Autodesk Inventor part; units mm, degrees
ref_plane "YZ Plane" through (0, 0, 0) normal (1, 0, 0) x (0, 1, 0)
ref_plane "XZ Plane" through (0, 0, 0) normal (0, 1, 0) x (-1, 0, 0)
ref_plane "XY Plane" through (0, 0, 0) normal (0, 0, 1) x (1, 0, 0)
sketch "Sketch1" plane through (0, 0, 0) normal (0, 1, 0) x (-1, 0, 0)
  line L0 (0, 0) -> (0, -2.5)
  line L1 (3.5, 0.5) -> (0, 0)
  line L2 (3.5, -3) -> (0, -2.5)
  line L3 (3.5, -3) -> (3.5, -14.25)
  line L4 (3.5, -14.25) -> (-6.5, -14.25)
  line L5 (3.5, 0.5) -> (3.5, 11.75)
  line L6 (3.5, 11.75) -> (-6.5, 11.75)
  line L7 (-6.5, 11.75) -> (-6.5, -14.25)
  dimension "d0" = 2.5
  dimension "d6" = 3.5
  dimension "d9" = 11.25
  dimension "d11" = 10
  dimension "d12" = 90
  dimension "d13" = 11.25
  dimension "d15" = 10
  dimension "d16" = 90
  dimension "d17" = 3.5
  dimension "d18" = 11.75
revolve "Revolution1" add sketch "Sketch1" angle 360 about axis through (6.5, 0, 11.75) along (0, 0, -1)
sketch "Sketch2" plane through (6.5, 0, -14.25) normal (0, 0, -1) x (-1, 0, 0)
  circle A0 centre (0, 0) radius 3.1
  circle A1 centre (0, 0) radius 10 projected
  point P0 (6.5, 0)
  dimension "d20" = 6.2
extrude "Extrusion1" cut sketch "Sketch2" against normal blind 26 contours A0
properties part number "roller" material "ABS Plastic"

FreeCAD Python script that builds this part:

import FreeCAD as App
import Part
import Sketcher

V = App.Vector
Q = App.Units.Quantity


def add_polygon(sketch, points):
    """Adds a closed chain of lines whose ends are joined by coincident constraints."""
    first, n = sketch.GeometryCount, len(points)
    for a, b in zip(points, points[1:] + points[:1]):
        sketch.addGeometry(Part.LineSegment(App.Vector(*a, 0), App.Vector(*b, 0)), False)
    for i in range(n):
        sketch.addConstraint(Sketcher.Constraint("Coincident", first + i, 2, first + (i + 1) % n, 1))

doc = App.newDocument("Part")
body = doc.addObject("PartDesign::Body", "Body")

# Sketch on XZ plane
sketch1 = doc.addObject("Sketcher::SketchObject", "Sketch")
body.addObject(sketch1)
sketch1.AttachmentSupport = (doc.XZ_Plane, [""])
sketch1.MapMode = "FlatFace"
add_polygon(sketch1, [(0, -2.5), (0, 0), (-3.5, 0.5), (-3.5, 11.8), (6.5, 11.8), (6.5, -14.2), (-3.5, -14.2), (-3.5, -3)])  # lines 0-7
sketch1.addGeometry(Part.LineSegment(V(6.5, 11.8, 0), V(6.5, -14.2, 0)), True)  # axis
sketch1.addConstraint(Sketcher.Constraint("Vertical", 0))
sketch1.addConstraint(Sketcher.Constraint("Vertical", 2))
sketch1.addConstraint(Sketcher.Constraint("Horizontal", 3))
sketch1.addConstraint(Sketcher.Constraint("Vertical", 4))
sketch1.addConstraint(Sketcher.Constraint("Horizontal", 5))
sketch1.addConstraint(Sketcher.Constraint("Vertical", 6))
sketch1.addConstraint(Sketcher.Constraint("Vertical", 8))
sketch1.addConstraint(Sketcher.Constraint("Coincident", 0, 2, -1, 1))
sketch1.addConstraint(Sketcher.Constraint("Coincident", 8, 1, 3, 2))
sketch1.addConstraint(Sketcher.Constraint("Horizontal", 5, 2, 8, 2))
sketch1.addConstraint(Sketcher.Constraint("Vertical", 2, 2, 5, 2))
sketch1.addConstraint(Sketcher.Constraint("Equal", 2, 6))
sketch1.addConstraint(Sketcher.Constraint("Equal", 1, 7))
sketch1.addConstraint(Sketcher.Constraint("DistanceX", 3, 1, 3, 2, Q("10 mm")))
sketch1.addConstraint(Sketcher.Constraint("DistanceY", 0, 1, 0, 2, Q("2.5 mm")))
sketch1.addConstraint(Sketcher.Constraint("DistanceY", 2, 1, 2, 2, Q("11.25 mm")))
sketch1.addConstraint(Sketcher.Constraint("DistanceX", 1, 2, -1, 1, Q("3.5 mm")))
sketch1.addConstraint(Sketcher.Constraint("DistanceY", 6, 2, 1, 2, Q("3.5 mm")))
revolution = doc.addObject("PartDesign::Revolution", "Revolution")
body.addObject(revolution)
revolution.Profile = sketch1
revolution.ReferenceAxis = (sketch1, ["Axis0"])
revolution.Angle = 360

# Sketch on XY plane
sketch2 = doc.addObject("Sketcher::SketchObject", "Sketch001")
body.addObject(sketch2)
sketch2.AttachmentSupport = (doc.XY_Plane, [""])
sketch2.MapMode = "FlatFace"
sketch2.AttachmentOffset = App.Placement(V(0, 0, -14.25), App.Rotation())
sketch2.addGeometry(Part.Circle(V(6.5, 0, 0), V(0, 0, 1), 3.1), False)
sketch2.addConstraint(Sketcher.Constraint("PointOnObject", 0, 3, -1))
sketch2.addConstraint(Sketcher.Constraint("Diameter", 0, Q("6.2 mm")))
sketch2.addConstraint(Sketcher.Constraint("DistanceX", -1, 1, 0, 3, Q("6.5 mm")))
pocket1 = doc.addObject("PartDesign::Pocket", "Pocket")
body.addObject(pocket1)
pocket1.Profile = sketch2
pocket1.Length = 26
pocket1.Reversed = True

doc.recompute()
